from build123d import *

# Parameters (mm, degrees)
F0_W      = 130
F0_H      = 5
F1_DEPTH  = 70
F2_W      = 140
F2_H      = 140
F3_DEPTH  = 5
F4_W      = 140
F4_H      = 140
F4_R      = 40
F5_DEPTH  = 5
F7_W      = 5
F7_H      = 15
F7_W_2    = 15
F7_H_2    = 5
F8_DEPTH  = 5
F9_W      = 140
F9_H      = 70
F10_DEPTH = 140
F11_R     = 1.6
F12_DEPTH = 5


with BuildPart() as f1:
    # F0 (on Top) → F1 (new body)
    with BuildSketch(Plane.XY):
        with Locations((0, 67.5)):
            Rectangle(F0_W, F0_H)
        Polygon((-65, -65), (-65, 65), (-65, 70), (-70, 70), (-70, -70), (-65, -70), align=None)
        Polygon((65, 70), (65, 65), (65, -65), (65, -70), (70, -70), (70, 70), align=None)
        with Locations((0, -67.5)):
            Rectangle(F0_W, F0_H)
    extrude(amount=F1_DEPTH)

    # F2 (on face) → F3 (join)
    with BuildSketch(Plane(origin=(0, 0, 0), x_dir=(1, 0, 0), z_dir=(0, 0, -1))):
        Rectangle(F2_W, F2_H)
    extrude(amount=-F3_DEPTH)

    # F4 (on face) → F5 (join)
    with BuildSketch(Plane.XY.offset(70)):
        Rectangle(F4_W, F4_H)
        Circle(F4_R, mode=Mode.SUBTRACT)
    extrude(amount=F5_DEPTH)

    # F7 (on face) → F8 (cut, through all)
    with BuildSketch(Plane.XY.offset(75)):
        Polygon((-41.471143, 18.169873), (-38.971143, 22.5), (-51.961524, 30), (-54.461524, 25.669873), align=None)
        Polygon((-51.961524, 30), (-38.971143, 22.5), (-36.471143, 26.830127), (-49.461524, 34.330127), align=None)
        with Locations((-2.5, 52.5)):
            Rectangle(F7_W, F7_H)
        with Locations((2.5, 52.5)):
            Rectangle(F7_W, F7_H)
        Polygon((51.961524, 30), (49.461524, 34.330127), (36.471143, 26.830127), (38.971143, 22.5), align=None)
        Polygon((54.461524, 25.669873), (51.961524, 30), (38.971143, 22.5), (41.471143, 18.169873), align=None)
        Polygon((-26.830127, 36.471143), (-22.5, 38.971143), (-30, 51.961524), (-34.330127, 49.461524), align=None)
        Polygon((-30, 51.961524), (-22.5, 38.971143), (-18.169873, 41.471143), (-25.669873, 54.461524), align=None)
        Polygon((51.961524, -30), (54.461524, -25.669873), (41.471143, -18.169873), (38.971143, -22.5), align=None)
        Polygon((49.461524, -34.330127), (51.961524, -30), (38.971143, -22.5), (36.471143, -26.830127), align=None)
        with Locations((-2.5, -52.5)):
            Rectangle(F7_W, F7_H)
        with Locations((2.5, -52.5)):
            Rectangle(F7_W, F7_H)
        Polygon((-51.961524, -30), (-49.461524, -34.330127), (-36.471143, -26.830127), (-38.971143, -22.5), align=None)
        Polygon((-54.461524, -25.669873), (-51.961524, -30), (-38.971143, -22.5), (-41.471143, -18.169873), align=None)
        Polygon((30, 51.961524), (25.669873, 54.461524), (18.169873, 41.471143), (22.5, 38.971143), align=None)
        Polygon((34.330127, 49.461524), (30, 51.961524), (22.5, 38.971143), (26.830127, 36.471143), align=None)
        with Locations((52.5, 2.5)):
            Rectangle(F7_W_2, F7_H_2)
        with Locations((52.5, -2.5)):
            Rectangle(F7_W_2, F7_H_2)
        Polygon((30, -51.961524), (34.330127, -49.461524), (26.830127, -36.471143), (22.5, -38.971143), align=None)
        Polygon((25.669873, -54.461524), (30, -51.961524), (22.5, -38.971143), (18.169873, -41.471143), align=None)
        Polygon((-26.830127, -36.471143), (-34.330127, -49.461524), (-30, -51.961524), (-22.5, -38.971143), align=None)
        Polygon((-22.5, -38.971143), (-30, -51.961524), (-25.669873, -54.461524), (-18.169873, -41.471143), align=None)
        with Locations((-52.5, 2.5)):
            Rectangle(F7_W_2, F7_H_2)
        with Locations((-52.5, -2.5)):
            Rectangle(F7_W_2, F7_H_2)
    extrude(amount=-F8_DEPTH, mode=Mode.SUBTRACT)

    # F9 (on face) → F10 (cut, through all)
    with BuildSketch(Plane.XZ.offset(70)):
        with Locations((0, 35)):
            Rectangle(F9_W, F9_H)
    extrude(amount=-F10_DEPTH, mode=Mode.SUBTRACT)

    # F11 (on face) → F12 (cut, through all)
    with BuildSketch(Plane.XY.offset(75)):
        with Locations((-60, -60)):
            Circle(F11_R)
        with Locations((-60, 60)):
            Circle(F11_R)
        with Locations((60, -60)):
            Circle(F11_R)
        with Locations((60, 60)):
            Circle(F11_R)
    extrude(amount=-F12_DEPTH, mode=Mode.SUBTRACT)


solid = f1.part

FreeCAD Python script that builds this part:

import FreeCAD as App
import Part
import Sketcher
Q = App.Units.Quantity


def add_polygon(sketch, points):
    """Adds a closed chain of lines whose ends are joined by coincident constraints."""
    first, n = sketch.GeometryCount, len(points)
    for a, b in zip(points, points[1:] + points[:1]):
        sketch.addGeometry(Part.LineSegment(App.Vector(*a, 0), App.Vector(*b, 0)), False)
    for i in range(n):
        sketch.addConstraint(Sketcher.Constraint("Coincident", first + i, 2, first + (i + 1) % n, 1))

doc = App.newDocument("Part")
body = doc.addObject("PartDesign::Body", "Body")

sketch1 = doc.addObject("Sketcher::SketchObject", "Sketch")
body.addObject(sketch1)
sketch1.AttachmentSupport = (doc.XY_Plane, [""])
sketch1.MapMode = "FlatFace"
add_polygon(sketch1, [(70, -70), (70, 70), (-70, 70), (-70, -70)])
add_polygon(sketch1, [(-65, 65), (65, 65), (65, -65), (-65, -65)])
sketch1.addConstraint([
    Sketcher.Constraint("Vertical", 0),
    Sketcher.Constraint("Horizontal", 1),
    Sketcher.Constraint("Vertical", 2),
    Sketcher.Constraint("Horizontal", 3),
    Sketcher.Constraint("Horizontal", 4),
    Sketcher.Constraint("Vertical", 5),
    Sketcher.Constraint("Horizontal", 6),
    Sketcher.Constraint("Vertical", 7),
    Sketcher.Constraint("Symmetric", 0, 2, 2, 2, -1, 1),
    Sketcher.Constraint("Symmetric", 4, 2, 6, 2, -1, 1),
    Sketcher.Constraint("Equal", 3, 0),
    Sketcher.Constraint("Equal", 6, 5),
    Sketcher.Constraint("DistanceX", 1, 2, 1, 1, 140.0),
    Sketcher.Constraint("DistanceX", 4, 1, 4, 2, 130.0),
])
pad1 = doc.addObject("PartDesign::Pad", "Pad")
body.addObject(pad1)
pad1.Profile = sketch1
pad1.Length = 70

sketch2 = doc.addObject("Sketcher::SketchObject", "Sketch001")
body.addObject(sketch2)
sketch2.AttachmentSupport = (doc.XY_Plane, [""])
sketch2.MapMode = "FlatFace"
add_polygon(sketch2, [(-70, -70), (-70, 70), (70, 70), (70, -70)])
sketch2.addConstraint([
    Sketcher.Constraint("Vertical", 0),
    Sketcher.Constraint("Horizontal", 1),
    Sketcher.Constraint("Vertical", 2),
    Sketcher.Constraint("Horizontal", 3),
    Sketcher.Constraint("Symmetric", 0, 2, 2, 2, -1, 1),
    Sketcher.Constraint("Equal", 3, 0),
    Sketcher.Constraint("DistanceX", 1, 1, 1, 2, 140.0),
])
pad2 = doc.addObject("PartDesign::Pad", "Pad001")
body.addObject(pad2)
pad2.Profile = sketch2
pad2.Length = 5

sketch3 = doc.addObject("Sketcher::SketchObject", "Sketch002")
body.addObject(sketch3)
sketch3.AttachmentSupport = (doc.XY_Plane, [""])
sketch3.MapMode = "FlatFace"
sketch3.AttachmentOffset = App.Placement(App.Vector(0, 0, 70), App.Rotation())
add_polygon(sketch3, [(-70, 70), (-70, -70), (70, -70), (70, 70)])
sketch3.addGeometry(Part.Circle(App.Vector(0, 0, 0), App.Vector(0, 0, 1), 40), False)
sketch3.addConstraint([
    Sketcher.Constraint("Vertical", 0),
    Sketcher.Constraint("Horizontal", 1),
    Sketcher.Constraint("Vertical", 2),
    Sketcher.Constraint("Horizontal", 3),
    Sketcher.Constraint("Coincident", 4, 3, -1, 1),
    Sketcher.Constraint("Symmetric", 0, 2, 2, 2, -1, 1),
    Sketcher.Constraint("Equal", 3, 0),
    Sketcher.Constraint("Diameter", 4, 80.0),
    Sketcher.Constraint("DistanceX", 1, 1, 1, 2, 140.0),
])
pad3 = doc.addObject("PartDesign::Pad", "Pad002")
body.addObject(pad3)
pad3.Profile = sketch3
pad3.Length = 5

sketch4 = doc.addObject("Sketcher::SketchObject", "Sketch003")
body.addObject(sketch4)
sketch4.AttachmentSupport = (doc.XY_Plane, [""])
sketch4.MapMode = "FlatFace"
sketch4.AttachmentOffset = App.Placement(App.Vector(0, 0, 75), App.Rotation())
add_polygon(sketch4, [(-41.471143, 18.169873), (-36.471143, 26.830127), (-49.461524, 34.330127), (-54.461524, 25.669873)])
add_polygon(sketch4, [(-5, 60), (-5, 45), (5, 45), (5, 60)])
add_polygon(sketch4, [(49.461524, 34.330127), (36.471143, 26.830127), (41.471143, 18.169873), (54.461524, 25.669873)])
add_polygon(sketch4, [(-26.830127, 36.471143), (-18.169873, 41.471143), (-25.669873, 54.461524), (-34.330127, 49.461524)])
add_polygon(sketch4, [(54.461524, -25.669873), (41.471143, -18.169873), (36.471143, -26.830127), (49.461524, -34.330127)])
add_polygon(sketch4, [(-5, -45), (-5, -60), (5, -60), (5, -45)])
add_polygon(sketch4, [(-49.461524, -34.330127), (-36.471143, -26.830127), (-41.471143, -18.169873), (-54.461524, -25.669873)])
add_polygon(sketch4, [(25.669873, 54.461524), (18.169873, 41.471143), (26.830127, 36.471143), (34.330127, 49.461524)])
add_polygon(sketch4, [(45, 5), (45, -5), (60, -5), (60, 5)])
add_polygon(sketch4, [(34.330127, -49.461524), (26.830127, -36.471143), (18.169873, -41.471143), (25.669873, -54.461524)])
add_polygon(sketch4, [(-26.830127, -36.471143), (-34.330127, -49.461524), (-25.669873, -54.461524), (-18.169873, -41.471143)])
add_polygon(sketch4, [(-60, 5), (-60, -5), (-45, -5), (-45, 5)])
sketch4.addConstraint([
    Sketcher.Constraint("Vertical", 4),
    Sketcher.Constraint("Horizontal", 5),
    Sketcher.Constraint("Vertical", 6),
    Sketcher.Constraint("Horizontal", 7),
    Sketcher.Constraint("Vertical", 20),
    Sketcher.Constraint("Horizontal", 21),
    Sketcher.Constraint("Vertical", 22),
    Sketcher.Constraint("Horizontal", 23),
    Sketcher.Constraint("Vertical", 32),
    Sketcher.Constraint("Horizontal", 33),
    Sketcher.Constraint("Vertical", 34),
    Sketcher.Constraint("Horizontal", 35),
    Sketcher.Constraint("Vertical", 44),
    Sketcher.Constraint("Horizontal", 45),
    Sketcher.Constraint("Vertical", 46),
    Sketcher.Constraint("Horizontal", 47),
    Sketcher.Constraint("Symmetric", 3, 2, 16, 2, -1, 1),
    Sketcher.Constraint("Symmetric", 0, 2, 17, 2, -1, 1),
    Sketcher.Constraint("Symmetric", 1, 2, 18, 2, -1, 1),
    Sketcher.Constraint("Symmetric", 2, 2, 19, 2, -1, 1),
    Sketcher.Constraint("Symmetric", 6, 2, 20, 2, -1, 1),
    Sketcher.Constraint("Symmetric", 4, 2, 22, 2, -1, 1),
    Sketcher.Constraint("Symmetric", 8, 2, 24, 2, -1, 1),
    Sketcher.Constraint("Symmetric", 9, 2, 25, 2, -1, 1),
    Sketcher.Constraint("Symmetric", 10, 2, 26, 2, -1, 1),
    Sketcher.Constraint("Symmetric", 11, 2, 27, 2, -1, 1),
    Sketcher.Constraint("Symmetric", 15, 2, 36, 2, -1, 1),
    Sketcher.Constraint("Symmetric", 12, 2, 37, 2, -1, 1),
    Sketcher.Constraint("Symmetric", 13, 2, 38, 2, -1, 1),
    Sketcher.Constraint("Symmetric", 14, 2, 39, 2, -1, 1),
    Sketcher.Constraint("Symmetric", 30, 2, 40, 2, -1, 1),
    Sketcher.Constraint("Symmetric", 31, 2, 41, 2, -1, 1),
    Sketcher.Constraint("Symmetric", 28, 2, 42, 2, -1, 1),
    Sketcher.Constraint("Symmetric", 29, 2, 43, 2, -1, 1),
    Sketcher.Constraint("Symmetric", 34, 2, 44, 2, -1, 1),
    Sketcher.Constraint("Symmetric", 32, 2, 46, 2, -1, 1),
    Sketcher.Constraint("Symmetric", 0, 2, 8, 2, -2),
    Sketcher.Constraint("Symmetric", 3, 2, 9, 2, -2),
    Sketcher.Constraint("Symmetric", 2, 2, 10, 2, -2),
    Sketcher.Constraint("Symmetric", 1, 2, 11, 2, -2),
    Sketcher.Constraint("Symmetric", 12, 2, 28, 2, -2),
    Sketcher.Constraint("Symmetric", 15, 2, 29, 2, -2),
    Sketcher.Constraint("Symmetric", 14, 2, 30, 2, -2),
    Sketcher.Constraint("Symmetric", 13, 2, 31, 2, -2),
    Sketcher.Constraint("Perpendicular", 0, 1),
    Sketcher.Constraint("Perpendicular", 1, 2),
    Sketcher.Constraint("Perpendicular", 2, 3),
    Sketcher.Constraint("Perpendicular", 11, 12),
    Sketcher.Constraint("Perpendicular", 12, 13),
    Sketcher.Constraint("Perpendicular", 13, 14),
    Sketcher.Constraint("Perpendicular", 14, 15),
    Sketcher.Constraint("Horizontal", 33, 2, 44, 2),
    Sketcher.Constraint("Vertical", 7, 2, 20, 2),
    Sketcher.Constraint("Equal", 47, 4),
    Sketcher.Constraint("Equal", 23, 32),
    Sketcher.Constraint("Equal", 11, 12),
    Sketcher.Constraint("Equal", 10, 13),
    Sketcher.Constraint("DistanceX", 5, 1, 5, 2, 10.0),
    Sketcher.Constraint("DistanceX", 33, 1, 33, 2, 15.0),
    Sketcher.Constraint("Angle", 0, Q("60 deg")),
    Sketcher.Constraint("Distance", 0, 10.0),
    Sketcher.Constraint("Distance", 1, 15.0),
    Sketcher.Constraint("DistanceY", -1, 1, 4, 2, 45.0),
    Sketcher.Constraint("DistanceX", -1, 1, 32, 2, 45.0),
    Sketcher.Constraint("DistanceY", 16, 2, 8, 2, 45.0),
    Sketcher.Constraint("DistanceX", 0, 2, 12, 2, 18.30127),
    Sketcher.Constraint("DistanceY", 9, 2, 29, 2, 18.30127),
    Sketcher.Constraint("DistanceX", 0, 2, -1, 1, 36.471143),
])
pocket1 = doc.addObject("PartDesign::Pocket", "Pocket")
body.addObject(pocket1)
pocket1.Profile = sketch4
pocket1.Length = 5

sketch5 = doc.addObject("Sketcher::SketchObject", "Sketch004")
body.addObject(sketch5)
sketch5.AttachmentSupport = (doc.XZ_Plane, [""])
sketch5.MapMode = "FlatFace"
sketch5.AttachmentOffset = App.Placement(App.Vector(0, 0, 70), App.Rotation())
add_polygon(sketch5, [(-70, 70), (-70, 0), (70, 0), (70, 70)])
sketch5.addConstraint([
    Sketcher.Constraint("Vertical", 0),
    Sketcher.Constraint("Horizontal", 1),
    Sketcher.Constraint("Vertical", 2),
    Sketcher.Constraint("Horizontal", 3),
    Sketcher.Constraint("Symmetric", 0, 2, 1, 2, -1, 1),
    Sketcher.Constraint("DistanceX", 1, 1, 1, 2, 140.0),
    Sketcher.Constraint("DistanceY", 0, 2, 0, 1, 70.0),
])
pocket2 = doc.addObject("PartDesign::Pocket", "Pocket001")
body.addObject(pocket2)
pocket2.Profile = sketch5
pocket2.Type = "ThroughAll"

sketch6 = doc.addObject("Sketcher::SketchObject", "Sketch005")
body.addObject(sketch6)
sketch6.AttachmentSupport = (doc.XY_Plane, [""])
sketch6.MapMode = "FlatFace"
sketch6.AttachmentOffset = App.Placement(App.Vector(0, 0, 75), App.Rotation())
sketch6.addGeometry([
    Part.Circle(App.Vector(-60, -60, 0), App.Vector(0, 0, 1), 1.6),
    Part.Circle(App.Vector(-60, 60, 0), App.Vector(0, 0, 1), 1.6),
    Part.Circle(App.Vector(60, -60, 0), App.Vector(0, 0, 1), 1.6),
    Part.Circle(App.Vector(60, 60, 0), App.Vector(0, 0, 1), 1.6),
], False)
sketch6.addConstraint([
    Sketcher.Constraint("Equal", 0, 1),
    Sketcher.Constraint("Equal", 1, 2),
    Sketcher.Constraint("Equal", 2, 3),
    Sketcher.Constraint("Symmetric", 1, 3, 2, 3, -1, 1),
    Sketcher.Constraint("Symmetric", 0, 3, 3, 3, -1, 1),
    Sketcher.Constraint("Symmetric", 0, 3, 2, 3, -2),
    Sketcher.Constraint("Diameter", 0, 3.2),
    Sketcher.Constraint("DistanceX", 0, 3, -1, 1, 60.0),
    Sketcher.Constraint("DistanceY", 0, 3, -1, 1, 60.0),
])
pocket3 = doc.addObject("PartDesign::Pocket", "Pocket002")
body.addObject(pocket3)
pocket3.Profile = sketch6
pocket3.Type = "ThroughAll"

doc.recompute()
